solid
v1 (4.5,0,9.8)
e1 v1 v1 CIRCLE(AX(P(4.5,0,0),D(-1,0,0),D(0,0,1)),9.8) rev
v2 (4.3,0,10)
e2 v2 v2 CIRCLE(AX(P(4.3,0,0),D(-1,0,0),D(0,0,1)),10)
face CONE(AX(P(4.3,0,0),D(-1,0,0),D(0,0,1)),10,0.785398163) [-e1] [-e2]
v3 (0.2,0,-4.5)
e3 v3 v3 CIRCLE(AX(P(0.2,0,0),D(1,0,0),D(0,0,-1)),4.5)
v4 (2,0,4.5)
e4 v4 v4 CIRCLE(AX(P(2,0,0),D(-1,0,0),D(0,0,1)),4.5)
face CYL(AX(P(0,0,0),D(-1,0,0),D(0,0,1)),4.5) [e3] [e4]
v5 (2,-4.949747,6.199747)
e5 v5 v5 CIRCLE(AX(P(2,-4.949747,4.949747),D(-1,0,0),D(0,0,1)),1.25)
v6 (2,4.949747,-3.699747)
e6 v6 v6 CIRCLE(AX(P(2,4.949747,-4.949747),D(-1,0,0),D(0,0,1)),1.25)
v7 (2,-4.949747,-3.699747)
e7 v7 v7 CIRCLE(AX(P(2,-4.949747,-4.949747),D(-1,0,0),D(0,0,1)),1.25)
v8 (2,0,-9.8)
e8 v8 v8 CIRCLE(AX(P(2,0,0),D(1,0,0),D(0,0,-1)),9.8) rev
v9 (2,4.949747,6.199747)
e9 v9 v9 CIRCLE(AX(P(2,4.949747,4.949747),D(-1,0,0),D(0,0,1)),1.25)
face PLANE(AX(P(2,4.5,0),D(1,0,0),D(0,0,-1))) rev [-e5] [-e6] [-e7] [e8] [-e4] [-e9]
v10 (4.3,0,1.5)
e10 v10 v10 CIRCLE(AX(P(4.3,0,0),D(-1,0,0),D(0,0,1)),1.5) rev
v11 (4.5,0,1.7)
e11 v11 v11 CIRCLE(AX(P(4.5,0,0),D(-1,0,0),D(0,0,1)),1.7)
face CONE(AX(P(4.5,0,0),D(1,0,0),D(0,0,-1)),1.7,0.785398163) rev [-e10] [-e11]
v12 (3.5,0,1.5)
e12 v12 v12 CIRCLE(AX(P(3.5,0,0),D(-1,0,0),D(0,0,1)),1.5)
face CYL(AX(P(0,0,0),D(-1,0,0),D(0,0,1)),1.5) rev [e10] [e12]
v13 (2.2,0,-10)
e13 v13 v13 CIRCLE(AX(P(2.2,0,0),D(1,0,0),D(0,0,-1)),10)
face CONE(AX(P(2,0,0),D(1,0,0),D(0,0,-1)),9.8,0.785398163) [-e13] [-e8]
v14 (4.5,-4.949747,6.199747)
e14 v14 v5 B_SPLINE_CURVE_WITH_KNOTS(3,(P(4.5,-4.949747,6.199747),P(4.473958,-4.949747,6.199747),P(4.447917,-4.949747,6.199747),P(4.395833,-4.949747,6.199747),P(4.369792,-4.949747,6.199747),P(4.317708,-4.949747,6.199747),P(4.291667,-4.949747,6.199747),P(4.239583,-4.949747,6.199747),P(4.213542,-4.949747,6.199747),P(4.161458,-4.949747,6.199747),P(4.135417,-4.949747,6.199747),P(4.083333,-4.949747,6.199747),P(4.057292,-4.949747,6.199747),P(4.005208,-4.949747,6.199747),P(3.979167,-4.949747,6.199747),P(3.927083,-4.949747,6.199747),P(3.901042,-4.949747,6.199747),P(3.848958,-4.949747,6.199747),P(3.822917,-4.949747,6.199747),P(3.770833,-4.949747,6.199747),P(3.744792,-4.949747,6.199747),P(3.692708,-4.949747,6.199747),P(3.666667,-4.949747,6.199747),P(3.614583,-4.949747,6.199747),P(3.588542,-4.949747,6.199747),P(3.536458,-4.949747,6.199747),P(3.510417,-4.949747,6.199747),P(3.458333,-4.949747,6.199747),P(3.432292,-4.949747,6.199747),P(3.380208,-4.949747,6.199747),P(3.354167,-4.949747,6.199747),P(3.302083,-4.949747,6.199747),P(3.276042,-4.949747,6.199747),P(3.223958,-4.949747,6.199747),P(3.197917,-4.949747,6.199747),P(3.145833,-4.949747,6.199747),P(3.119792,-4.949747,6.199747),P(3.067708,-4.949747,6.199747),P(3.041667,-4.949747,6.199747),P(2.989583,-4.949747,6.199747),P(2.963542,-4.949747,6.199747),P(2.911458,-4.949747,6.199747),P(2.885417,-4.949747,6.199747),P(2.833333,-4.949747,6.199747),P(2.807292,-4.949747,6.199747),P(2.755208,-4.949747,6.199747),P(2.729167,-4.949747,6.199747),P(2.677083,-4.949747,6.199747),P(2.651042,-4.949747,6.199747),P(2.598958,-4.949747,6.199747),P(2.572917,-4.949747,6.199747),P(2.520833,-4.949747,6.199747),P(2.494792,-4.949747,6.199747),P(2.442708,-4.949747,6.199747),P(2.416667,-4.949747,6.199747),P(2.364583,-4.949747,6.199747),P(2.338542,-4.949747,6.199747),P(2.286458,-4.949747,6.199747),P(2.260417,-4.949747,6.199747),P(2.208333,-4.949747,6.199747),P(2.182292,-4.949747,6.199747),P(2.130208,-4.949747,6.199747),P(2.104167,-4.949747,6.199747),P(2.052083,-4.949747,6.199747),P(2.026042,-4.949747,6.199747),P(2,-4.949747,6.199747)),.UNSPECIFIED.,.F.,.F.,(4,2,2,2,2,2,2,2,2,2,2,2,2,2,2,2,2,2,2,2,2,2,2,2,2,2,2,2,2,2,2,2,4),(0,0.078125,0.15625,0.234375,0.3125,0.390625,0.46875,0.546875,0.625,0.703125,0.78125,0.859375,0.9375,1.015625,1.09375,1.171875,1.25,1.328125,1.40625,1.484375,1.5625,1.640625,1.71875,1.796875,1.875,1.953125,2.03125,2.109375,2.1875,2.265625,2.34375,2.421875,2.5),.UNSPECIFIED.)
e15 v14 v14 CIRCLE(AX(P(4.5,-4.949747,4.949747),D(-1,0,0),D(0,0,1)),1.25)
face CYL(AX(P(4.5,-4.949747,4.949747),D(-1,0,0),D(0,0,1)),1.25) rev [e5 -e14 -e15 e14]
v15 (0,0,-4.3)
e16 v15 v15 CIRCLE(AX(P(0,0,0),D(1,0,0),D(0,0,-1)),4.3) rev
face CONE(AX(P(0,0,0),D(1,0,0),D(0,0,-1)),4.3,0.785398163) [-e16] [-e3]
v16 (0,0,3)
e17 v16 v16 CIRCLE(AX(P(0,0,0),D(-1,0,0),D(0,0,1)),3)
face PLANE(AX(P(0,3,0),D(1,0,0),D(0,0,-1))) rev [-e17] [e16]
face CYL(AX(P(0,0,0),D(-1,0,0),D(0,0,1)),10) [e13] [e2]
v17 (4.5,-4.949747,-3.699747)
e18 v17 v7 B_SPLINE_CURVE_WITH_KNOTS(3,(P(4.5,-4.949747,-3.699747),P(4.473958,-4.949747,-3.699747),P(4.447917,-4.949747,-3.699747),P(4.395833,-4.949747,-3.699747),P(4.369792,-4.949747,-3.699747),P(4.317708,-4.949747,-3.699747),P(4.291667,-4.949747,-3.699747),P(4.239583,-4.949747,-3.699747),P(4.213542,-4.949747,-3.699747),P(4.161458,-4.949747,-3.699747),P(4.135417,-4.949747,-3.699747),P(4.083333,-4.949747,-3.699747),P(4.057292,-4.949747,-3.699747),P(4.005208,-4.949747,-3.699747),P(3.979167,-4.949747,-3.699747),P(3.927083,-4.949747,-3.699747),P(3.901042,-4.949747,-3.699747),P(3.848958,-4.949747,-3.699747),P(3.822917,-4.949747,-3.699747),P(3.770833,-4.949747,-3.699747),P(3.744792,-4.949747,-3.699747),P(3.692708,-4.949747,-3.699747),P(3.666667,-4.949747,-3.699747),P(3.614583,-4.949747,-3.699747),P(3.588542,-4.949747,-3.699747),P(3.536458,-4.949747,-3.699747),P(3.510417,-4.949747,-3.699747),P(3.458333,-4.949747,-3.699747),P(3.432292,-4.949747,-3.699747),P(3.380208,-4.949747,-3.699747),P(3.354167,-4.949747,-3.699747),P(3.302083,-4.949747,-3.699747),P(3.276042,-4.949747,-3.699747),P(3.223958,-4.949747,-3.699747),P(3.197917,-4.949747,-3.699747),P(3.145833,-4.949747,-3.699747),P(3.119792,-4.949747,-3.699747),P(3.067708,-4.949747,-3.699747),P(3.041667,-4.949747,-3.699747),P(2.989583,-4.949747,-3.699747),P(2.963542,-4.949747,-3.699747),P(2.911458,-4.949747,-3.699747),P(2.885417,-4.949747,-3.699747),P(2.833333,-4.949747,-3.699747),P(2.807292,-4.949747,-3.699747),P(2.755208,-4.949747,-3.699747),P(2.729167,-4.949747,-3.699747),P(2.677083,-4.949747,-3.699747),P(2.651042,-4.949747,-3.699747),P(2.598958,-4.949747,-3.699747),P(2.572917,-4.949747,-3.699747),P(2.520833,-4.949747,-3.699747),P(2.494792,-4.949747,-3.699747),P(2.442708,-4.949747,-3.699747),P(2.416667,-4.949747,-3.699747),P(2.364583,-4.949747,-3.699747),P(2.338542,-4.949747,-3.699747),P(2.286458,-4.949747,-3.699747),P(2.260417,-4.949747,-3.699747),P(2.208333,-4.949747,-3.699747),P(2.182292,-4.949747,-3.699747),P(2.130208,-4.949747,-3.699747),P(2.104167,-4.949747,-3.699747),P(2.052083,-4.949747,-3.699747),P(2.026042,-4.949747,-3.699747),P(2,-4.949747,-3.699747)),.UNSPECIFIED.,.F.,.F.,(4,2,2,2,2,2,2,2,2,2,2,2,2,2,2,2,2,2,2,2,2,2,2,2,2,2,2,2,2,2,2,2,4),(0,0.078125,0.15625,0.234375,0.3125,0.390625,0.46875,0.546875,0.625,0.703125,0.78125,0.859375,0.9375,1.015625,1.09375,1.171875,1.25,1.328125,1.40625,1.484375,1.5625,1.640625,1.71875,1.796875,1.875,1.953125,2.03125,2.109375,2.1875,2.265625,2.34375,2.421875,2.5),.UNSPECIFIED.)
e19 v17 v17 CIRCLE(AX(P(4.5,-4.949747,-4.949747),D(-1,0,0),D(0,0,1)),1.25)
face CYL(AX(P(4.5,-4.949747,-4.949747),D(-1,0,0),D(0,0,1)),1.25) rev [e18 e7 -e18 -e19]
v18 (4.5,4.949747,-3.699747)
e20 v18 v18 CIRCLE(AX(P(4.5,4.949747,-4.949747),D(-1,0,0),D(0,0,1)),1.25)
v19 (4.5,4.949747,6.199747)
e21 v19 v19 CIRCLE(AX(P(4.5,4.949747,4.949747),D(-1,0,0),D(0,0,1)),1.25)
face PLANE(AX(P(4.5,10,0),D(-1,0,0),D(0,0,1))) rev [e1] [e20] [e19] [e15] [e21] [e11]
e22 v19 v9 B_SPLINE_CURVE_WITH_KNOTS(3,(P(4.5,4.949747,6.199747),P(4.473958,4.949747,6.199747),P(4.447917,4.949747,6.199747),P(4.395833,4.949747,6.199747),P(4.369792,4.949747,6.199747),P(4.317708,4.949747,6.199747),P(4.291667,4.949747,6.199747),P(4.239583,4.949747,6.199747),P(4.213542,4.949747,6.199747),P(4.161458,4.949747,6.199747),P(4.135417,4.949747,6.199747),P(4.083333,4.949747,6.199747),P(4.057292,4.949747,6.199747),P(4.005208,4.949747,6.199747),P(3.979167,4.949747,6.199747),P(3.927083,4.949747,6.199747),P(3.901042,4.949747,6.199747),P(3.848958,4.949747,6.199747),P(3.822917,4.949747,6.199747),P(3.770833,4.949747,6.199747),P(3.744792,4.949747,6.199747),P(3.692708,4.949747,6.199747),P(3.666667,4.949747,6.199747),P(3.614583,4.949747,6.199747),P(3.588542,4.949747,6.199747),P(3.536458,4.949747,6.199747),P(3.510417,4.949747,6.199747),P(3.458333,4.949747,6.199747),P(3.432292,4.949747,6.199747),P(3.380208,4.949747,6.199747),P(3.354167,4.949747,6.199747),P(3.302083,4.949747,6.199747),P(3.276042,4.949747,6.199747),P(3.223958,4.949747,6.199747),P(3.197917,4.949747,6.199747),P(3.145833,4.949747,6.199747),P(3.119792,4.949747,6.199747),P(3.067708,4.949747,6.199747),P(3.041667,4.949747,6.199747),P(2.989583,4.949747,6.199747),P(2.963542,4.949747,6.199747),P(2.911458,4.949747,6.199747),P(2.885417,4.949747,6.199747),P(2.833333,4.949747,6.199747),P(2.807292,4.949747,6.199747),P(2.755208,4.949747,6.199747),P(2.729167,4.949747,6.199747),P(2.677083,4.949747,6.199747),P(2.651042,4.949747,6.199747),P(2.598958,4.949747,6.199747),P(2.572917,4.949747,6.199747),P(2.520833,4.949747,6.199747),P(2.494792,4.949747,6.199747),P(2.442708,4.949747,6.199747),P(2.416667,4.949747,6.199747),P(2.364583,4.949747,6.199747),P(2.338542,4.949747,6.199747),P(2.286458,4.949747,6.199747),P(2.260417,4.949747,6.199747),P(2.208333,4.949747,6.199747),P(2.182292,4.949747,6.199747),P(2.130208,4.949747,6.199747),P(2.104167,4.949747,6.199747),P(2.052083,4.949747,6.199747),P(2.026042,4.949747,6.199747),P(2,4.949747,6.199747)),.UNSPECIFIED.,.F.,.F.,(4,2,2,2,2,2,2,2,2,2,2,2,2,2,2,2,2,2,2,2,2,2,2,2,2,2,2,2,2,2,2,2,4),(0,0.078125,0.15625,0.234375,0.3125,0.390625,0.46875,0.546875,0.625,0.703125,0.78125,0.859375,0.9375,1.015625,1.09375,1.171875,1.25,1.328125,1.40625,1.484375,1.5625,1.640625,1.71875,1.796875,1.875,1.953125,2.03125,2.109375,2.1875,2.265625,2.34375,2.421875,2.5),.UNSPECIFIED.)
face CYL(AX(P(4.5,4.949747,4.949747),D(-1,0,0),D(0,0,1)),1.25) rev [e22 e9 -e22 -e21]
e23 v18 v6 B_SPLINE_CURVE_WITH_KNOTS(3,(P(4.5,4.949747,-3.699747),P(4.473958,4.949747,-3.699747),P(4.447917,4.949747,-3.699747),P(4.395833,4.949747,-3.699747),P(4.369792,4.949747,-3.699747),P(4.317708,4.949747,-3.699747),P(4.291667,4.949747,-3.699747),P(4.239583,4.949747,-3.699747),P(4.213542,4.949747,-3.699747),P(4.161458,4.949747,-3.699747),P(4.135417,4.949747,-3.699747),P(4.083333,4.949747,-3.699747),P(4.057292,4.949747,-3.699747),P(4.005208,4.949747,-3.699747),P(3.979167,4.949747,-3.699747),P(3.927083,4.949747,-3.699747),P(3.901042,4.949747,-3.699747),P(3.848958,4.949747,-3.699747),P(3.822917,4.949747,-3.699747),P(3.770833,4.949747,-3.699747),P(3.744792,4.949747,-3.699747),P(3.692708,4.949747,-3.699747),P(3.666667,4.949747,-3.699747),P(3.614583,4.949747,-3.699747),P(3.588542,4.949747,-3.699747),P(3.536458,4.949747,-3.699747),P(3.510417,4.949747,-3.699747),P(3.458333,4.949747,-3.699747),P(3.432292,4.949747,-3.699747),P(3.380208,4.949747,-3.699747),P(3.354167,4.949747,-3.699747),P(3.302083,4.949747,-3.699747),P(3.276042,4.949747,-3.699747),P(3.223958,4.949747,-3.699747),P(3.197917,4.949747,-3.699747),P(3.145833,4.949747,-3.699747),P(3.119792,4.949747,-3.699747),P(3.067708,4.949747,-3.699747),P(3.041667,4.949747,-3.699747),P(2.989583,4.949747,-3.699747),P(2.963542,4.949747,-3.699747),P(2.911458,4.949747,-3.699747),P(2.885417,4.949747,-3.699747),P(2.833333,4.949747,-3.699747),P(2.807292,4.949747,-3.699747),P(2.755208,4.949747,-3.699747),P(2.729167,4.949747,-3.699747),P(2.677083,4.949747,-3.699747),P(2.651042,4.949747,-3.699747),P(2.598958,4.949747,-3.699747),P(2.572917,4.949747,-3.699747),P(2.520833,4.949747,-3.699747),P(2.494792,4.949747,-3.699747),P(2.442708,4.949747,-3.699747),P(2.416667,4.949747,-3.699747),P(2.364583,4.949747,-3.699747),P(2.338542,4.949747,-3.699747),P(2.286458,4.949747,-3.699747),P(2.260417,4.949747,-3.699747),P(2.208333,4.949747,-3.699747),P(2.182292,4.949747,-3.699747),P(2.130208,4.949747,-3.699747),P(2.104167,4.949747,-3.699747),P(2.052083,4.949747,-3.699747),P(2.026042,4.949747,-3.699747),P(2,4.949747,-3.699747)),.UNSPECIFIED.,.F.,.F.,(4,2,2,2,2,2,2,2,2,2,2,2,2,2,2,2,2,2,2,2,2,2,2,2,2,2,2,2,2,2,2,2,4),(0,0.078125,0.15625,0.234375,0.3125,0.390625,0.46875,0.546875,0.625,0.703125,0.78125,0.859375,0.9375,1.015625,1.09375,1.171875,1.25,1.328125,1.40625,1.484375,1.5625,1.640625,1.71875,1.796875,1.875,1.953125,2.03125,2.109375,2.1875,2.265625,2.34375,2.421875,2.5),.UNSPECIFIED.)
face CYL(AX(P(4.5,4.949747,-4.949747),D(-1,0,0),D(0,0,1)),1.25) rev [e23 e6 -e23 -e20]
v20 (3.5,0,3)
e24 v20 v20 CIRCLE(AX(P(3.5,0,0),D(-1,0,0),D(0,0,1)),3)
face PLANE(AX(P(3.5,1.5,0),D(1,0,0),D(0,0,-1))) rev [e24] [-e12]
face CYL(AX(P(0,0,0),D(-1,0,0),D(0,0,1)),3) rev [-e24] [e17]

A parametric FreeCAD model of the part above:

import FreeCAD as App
import Part
import Sketcher


def edges_at(feature, points):
    """Names of the edges that pass closest to the given points."""
    edges = feature.Shape.Edges
    near = lambda p: min(range(len(edges)), key=lambda i: edges[i].distToShape(Part.Vertex(*p))[0])
    return sorted({f"Edge{near(p) + 1}" for p in points})


def add_polygon(sketch, points):
    """Adds a closed chain of lines whose ends are joined by coincident constraints."""
    first, n = sketch.GeometryCount, len(points)
    for a, b in zip(points, points[1:] + points[:1]):
        sketch.addGeometry(Part.LineSegment(App.Vector(*a, 0), App.Vector(*b, 0)), False)
    for i in range(n):
        sketch.addConstraint(Sketcher.Constraint("Coincident", first + i, 2, first + (i + 1) % n, 1))

doc = App.newDocument("Part")
body = doc.addObject("PartDesign::Body", "Body")

# Sketch on XY plane
sketch1 = doc.addObject("Sketcher::SketchObject", "Sketch")
body.addObject(sketch1)
sketch1.AttachmentSupport = (doc.XY_Plane, [""])
sketch1.MapMode = "FlatFace"
add_polygon(sketch1, [(0, 4.5), (0, 3), (3.5, 3), (3.5, 1.5), (4.5, 1.5), (4.5, 10), (2, 10), (2, 4.5)])  # lines 0-7
sketch1.addConstraint(Sketcher.Constraint("Vertical", 0))
sketch1.addConstraint(Sketcher.Constraint("Horizontal", 1))
sketch1.addConstraint(Sketcher.Constraint("Vertical", 2))
sketch1.addConstraint(Sketcher.Constraint("Horizontal", 3))
sketch1.addConstraint(Sketcher.Constraint("Vertical", 4))
sketch1.addConstraint(Sketcher.Constraint("Horizontal", 5))
sketch1.addConstraint(Sketcher.Constraint("Vertical", 6))
sketch1.addConstraint(Sketcher.Constraint("Horizontal", 7))
sketch1.addConstraint(Sketcher.Constraint("PointOnObject", 0, 2, -2))
sketch1.addConstraint(Sketcher.Constraint("Equal", 0, 2))
sketch1.addConstraint(Sketcher.Constraint("DistanceX", 3, 1, 3, 2, 1.0))
sketch1.addConstraint(Sketcher.Constraint("DistanceX", 7, 2, 7, 1, 2.0))
sketch1.addConstraint(Sketcher.Constraint("DistanceX", 1, 1, 1, 2, 3.5))
sketch1.addConstraint(Sketcher.Constraint("DistanceY", 0, 2, 0, 1, 1.5))
sketch1.addConstraint(Sketcher.Constraint("DistanceY", 4, 1, 4, 2, 8.5))
sketch1.addConstraint(Sketcher.Constraint("DistanceY", -1, 1, 0, 2, 3.0))
revolution = doc.addObject("PartDesign::Revolution", "Revolution")
body.addObject(revolution)
revolution.Profile = sketch1
revolution.ReferenceAxis = (sketch1, ["H_Axis"])
revolution.Angle = 360

# Sketch on YZ plane
sketch2 = doc.addObject("Sketcher::SketchObject", "Sketch001")
body.addObject(sketch2)
sketch2.AttachmentSupport = (doc.YZ_Plane, [""])
sketch2.MapMode = "FlatFace"
sketch2.AttachmentOffset = App.Placement(App.Vector(0, 0, 2), App.Rotation())
sketch2.addGeometry(Part.Circle(App.Vector(4.9, 4.9, 0), App.Vector(0, 0, 1), 1.2), False)
sketch2.addGeometry(Part.Circle(App.Vector(-4.9, 4.9, 0), App.Vector(0, 0, 1), 1.2), False)
sketch2.addGeometry(Part.Circle(App.Vector(-4.9, -4.9, 0), App.Vector(0, 0, 1), 1.2), False)
sketch2.addGeometry(Part.Circle(App.Vector(4.9, -4.9, 0), App.Vector(0, 0, 1), 1.2), False)
sketch2.addConstraint(Sketcher.Constraint("Equal", 0, 1))
sketch2.addConstraint(Sketcher.Constraint("Equal", 1, 2))
sketch2.addConstraint(Sketcher.Constraint("Equal", 2, 3))
sketch2.addConstraint(Sketcher.Constraint("Symmetric", 0, 3, 2, 3, -1, 1))
sketch2.addConstraint(Sketcher.Constraint("Symmetric", 1, 3, 3, 3, -1, 1))
sketch2.addConstraint(Sketcher.Constraint("Symmetric", 0, 3, 1, 3, -2))
sketch2.addConstraint(Sketcher.Constraint("Diameter", 0, 2.5))
sketch2.addConstraint(Sketcher.Constraint("DistanceX", -1, 1, 0, 3, 4.949747))
sketch2.addConstraint(Sketcher.Constraint("DistanceY", -1, 1, 0, 3, 4.949747))
pocket1 = doc.addObject("PartDesign::Pocket", "Pocket")
body.addObject(pocket1)
pocket1.Profile = sketch2
pocket1.Type = "ThroughAll"
pocket1.Reversed = True
doc.recompute()

chamfer = doc.addObject("PartDesign::Chamfer", "Chamfer")
body.addObject(chamfer)
chamfer.Base = (pocket1, edges_at(pocket1, [
    (4.5, 0, -1.5),
    (4.5, 0, -10),
    (2, 0, -10),
    (0, 0, -4.5),
]))
chamfer.Size = 0.2

doc.recompute()
